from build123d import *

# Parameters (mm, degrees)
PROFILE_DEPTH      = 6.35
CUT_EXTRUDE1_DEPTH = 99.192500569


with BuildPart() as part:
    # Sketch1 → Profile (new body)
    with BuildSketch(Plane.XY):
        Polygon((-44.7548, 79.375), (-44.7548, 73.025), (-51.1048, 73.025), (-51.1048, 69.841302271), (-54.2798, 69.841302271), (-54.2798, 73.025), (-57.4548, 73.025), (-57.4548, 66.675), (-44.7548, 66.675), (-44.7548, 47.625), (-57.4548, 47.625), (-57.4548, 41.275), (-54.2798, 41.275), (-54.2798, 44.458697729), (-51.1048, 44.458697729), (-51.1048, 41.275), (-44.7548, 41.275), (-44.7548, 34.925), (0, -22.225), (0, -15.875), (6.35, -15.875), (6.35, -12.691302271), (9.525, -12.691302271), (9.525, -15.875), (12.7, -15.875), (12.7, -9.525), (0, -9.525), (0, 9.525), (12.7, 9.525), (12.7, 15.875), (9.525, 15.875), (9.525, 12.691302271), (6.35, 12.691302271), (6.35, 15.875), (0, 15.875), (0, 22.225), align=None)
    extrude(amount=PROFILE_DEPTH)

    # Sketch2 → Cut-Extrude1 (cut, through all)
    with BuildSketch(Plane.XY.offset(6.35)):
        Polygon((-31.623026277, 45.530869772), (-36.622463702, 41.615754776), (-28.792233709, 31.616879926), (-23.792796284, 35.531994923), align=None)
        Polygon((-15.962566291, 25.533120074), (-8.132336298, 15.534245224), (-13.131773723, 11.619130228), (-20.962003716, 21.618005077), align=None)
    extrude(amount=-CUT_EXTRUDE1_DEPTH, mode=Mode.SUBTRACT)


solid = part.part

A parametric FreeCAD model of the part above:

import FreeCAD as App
import Part
import Sketcher

V = App.Vector
Q = App.Units.Quantity

doc = App.newDocument("Part")
body = doc.addObject("PartDesign::Body", "Body")

# Sketch on XY plane
sketch1 = doc.addObject("Sketcher::SketchObject", "Sketch")
body.addObject(sketch1)
sketch1.AttachmentSupport = (doc.XY_Plane, [""])
sketch1.MapMode = "FlatFace"
sketch1.addGeometry([
    Part.LineSegment(V(-44.7548, 79.375, 0), V(-44.7548, 73.025, 0)),  # 0
    Part.LineSegment(V(-44.7548, 73.025, 0), V(-51.1048, 73.025, 0)),  # 1
    Part.LineSegment(V(-51.1048, 73.025, 0), V(-51.1048, 69.841302, 0)),  # 2
    Part.LineSegment(V(-51.1048, 69.841302, 0), V(-54.2798, 69.841302, 0)),  # 3
    Part.LineSegment(V(-54.2798, 69.841302, 0), V(-54.2798, 73.025, 0)),  # 4
    Part.LineSegment(V(-54.2798, 73.025, 0), V(-57.4548, 73.025, 0)),  # 5
    Part.LineSegment(V(-57.4548, 73.025, 0), V(-57.4548, 66.675, 0)),  # 6
    Part.LineSegment(V(-57.4548, 66.675, 0), V(-44.7548, 66.675, 0)),  # 7
    Part.LineSegment(V(-44.7548, 66.675, 0), V(-44.7548, 47.625, 0)),  # 8
    Part.LineSegment(V(-44.7548, 47.625, 0), V(-57.4548, 47.625, 0)),  # 9
    Part.LineSegment(V(-57.4548, 47.625, 0), V(-57.4548, 41.275, 0)),  # 10
    Part.LineSegment(V(-57.4548, 41.275, 0), V(-54.2798, 41.275, 0)),  # 11
    Part.LineSegment(V(-54.2798, 41.275, 0), V(-54.2798, 44.458698, 0)),  # 12
    Part.LineSegment(V(-54.2798, 44.458698, 0), V(-51.1048, 44.458698, 0)),  # 13
    Part.LineSegment(V(-51.1048, 44.458698, 0), V(-51.1048, 41.275, 0)),  # 14
    Part.LineSegment(V(-51.1048, 41.275, 0), V(-44.7548, 41.275, 0)),  # 15
    Part.LineSegment(V(-44.7548, 41.275, 0), V(-44.7548, 34.925, 0)),  # 16
    Part.LineSegment(V(-44.7548, 34.925, 0), V(0, -22.225, 0)),  # 17
    Part.LineSegment(V(0, -22.225, 0), V(0, -15.875, 0)),  # 18
    Part.LineSegment(V(0, -15.875, 0), V(6.35, -15.875, 0)),  # 19
    Part.LineSegment(V(6.35, -15.875, 0), V(6.35, -12.691302, 0)),  # 20
    Part.LineSegment(V(6.35, -12.691302, 0), V(9.525, -12.691302, 0)),  # 21
    Part.LineSegment(V(9.525, -12.691302, 0), V(9.525, -15.875, 0)),  # 22
    Part.LineSegment(V(9.525, -15.875, 0), V(12.7, -15.875, 0)),  # 23
    Part.LineSegment(V(12.7, -15.875, 0), V(12.7, -9.525, 0)),  # 24
    Part.LineSegment(V(12.7, -9.525, 0), V(0, -9.525, 0)),  # 25
    Part.LineSegment(V(0, -9.525, 0), V(0, 9.525, 0)),  # 26
    Part.LineSegment(V(0, 9.525, 0), V(12.7, 9.525, 0)),  # 27
    Part.LineSegment(V(12.7, 9.525, 0), V(12.7, 15.875, 0)),  # 28
    Part.LineSegment(V(12.7, 15.875, 0), V(9.525, 15.875, 0)),  # 29
    Part.LineSegment(V(9.525, 15.875, 0), V(9.525, 12.691302, 0)),  # 30
    Part.LineSegment(V(9.525, 12.691302, 0), V(6.35, 12.691302, 0)),  # 31
    Part.LineSegment(V(6.35, 12.691302, 0), V(6.35, 15.875, 0)),  # 32
    Part.LineSegment(V(6.35, 15.875, 0), V(0, 15.875, 0)),  # 33
    Part.LineSegment(V(0, 15.875, 0), V(0, 22.225, 0)),  # 34
    Part.LineSegment(V(0, 22.225, 0), V(-44.7548, 79.375, 0)),  # 35
], False)
sketch1.addConstraint([
    Sketcher.Constraint("Coincident", 0, 2, 1, 1),
    Sketcher.Constraint("Coincident", 1, 2, 2, 1),
    Sketcher.Constraint("Coincident", 2, 2, 3, 1),
    Sketcher.Constraint("Coincident", 3, 2, 4, 1),
    Sketcher.Constraint("Coincident", 4, 2, 5, 1),
    Sketcher.Constraint("Coincident", 5, 2, 6, 1),
    Sketcher.Constraint("Coincident", 6, 2, 7, 1),
    Sketcher.Constraint("Coincident", 7, 2, 8, 1),
    Sketcher.Constraint("Coincident", 8, 2, 9, 1),
    Sketcher.Constraint("Coincident", 9, 2, 10, 1),
    Sketcher.Constraint("Coincident", 10, 2, 11, 1),
    Sketcher.Constraint("Coincident", 11, 2, 12, 1),
    Sketcher.Constraint("Coincident", 12, 2, 13, 1),
    Sketcher.Constraint("Coincident", 13, 2, 14, 1),
    Sketcher.Constraint("Coincident", 14, 2, 15, 1),
    Sketcher.Constraint("Coincident", 15, 2, 16, 1),
    Sketcher.Constraint("Coincident", 16, 2, 17, 1),
    Sketcher.Constraint("Coincident", 17, 2, 18, 1),
    Sketcher.Constraint("Coincident", 18, 2, 19, 1),
    Sketcher.Constraint("Coincident", 19, 2, 20, 1),
    Sketcher.Constraint("Coincident", 20, 2, 21, 1),
    Sketcher.Constraint("Coincident", 21, 2, 22, 1),
    Sketcher.Constraint("Coincident", 22, 2, 23, 1),
    Sketcher.Constraint("Coincident", 23, 2, 24, 1),
    Sketcher.Constraint("Coincident", 24, 2, 25, 1),
    Sketcher.Constraint("Coincident", 25, 2, 26, 1),
    Sketcher.Constraint("Coincident", 26, 2, 27, 1),
    Sketcher.Constraint("Coincident", 27, 2, 28, 1),
    Sketcher.Constraint("Coincident", 28, 2, 29, 1),
    Sketcher.Constraint("Coincident", 29, 2, 30, 1),
    Sketcher.Constraint("Coincident", 30, 2, 31, 1),
    Sketcher.Constraint("Coincident", 31, 2, 32, 1),
    Sketcher.Constraint("Coincident", 32, 2, 33, 1),
    Sketcher.Constraint("Coincident", 33, 2, 34, 1),
    Sketcher.Constraint("Coincident", 34, 2, 35, 1),
    Sketcher.Constraint("Coincident", 35, 2, 0, 1),
    Sketcher.Constraint("Vertical", 0),
    Sketcher.Constraint("Horizontal", 1),
    Sketcher.Constraint("Vertical", 2),
    Sketcher.Constraint("Horizontal", 3),
    Sketcher.Constraint("Vertical", 4),
    Sketcher.Constraint("Horizontal", 5),
    Sketcher.Constraint("Vertical", 6),
    Sketcher.Constraint("Horizontal", 7),
    Sketcher.Constraint("Vertical", 8),
    Sketcher.Constraint("Horizontal", 9),
    Sketcher.Constraint("Vertical", 10),
    Sketcher.Constraint("Horizontal", 11),
    Sketcher.Constraint("Vertical", 12),
    Sketcher.Constraint("Horizontal", 13),
    Sketcher.Constraint("Vertical", 14),
    Sketcher.Constraint("Horizontal", 15),
    Sketcher.Constraint("Vertical", 16),
    Sketcher.Constraint("Vertical", 18),
    Sketcher.Constraint("Horizontal", 19),
    Sketcher.Constraint("Vertical", 20),
    Sketcher.Constraint("Horizontal", 21),
    Sketcher.Constraint("Vertical", 22),
    Sketcher.Constraint("Horizontal", 23),
    Sketcher.Constraint("Vertical", 24),
    Sketcher.Constraint("Horizontal", 25),
    Sketcher.Constraint("Vertical", 26),
    Sketcher.Constraint("Horizontal", 27),
    Sketcher.Constraint("Vertical", 28),
    Sketcher.Constraint("Horizontal", 29),
    Sketcher.Constraint("Vertical", 30),
    Sketcher.Constraint("Horizontal", 31),
    Sketcher.Constraint("Vertical", 32),
    Sketcher.Constraint("Horizontal", 33),
    Sketcher.Constraint("Vertical", 34),
    Sketcher.Constraint("Symmetric", 25, 2, 26, 2, -1, 1),
    Sketcher.Constraint("Symmetric", 18, 2, 33, 2, -1, 1),
    Sketcher.Constraint("Symmetric", 23, 2, 28, 2, -1),
    Sketcher.Constraint("Symmetric", 21, 2, 30, 2, -1),
    Sketcher.Constraint("Symmetric", 17, 2, 34, 2, -1),
    Sketcher.Constraint("Parallel", 17, 35),
    Sketcher.Constraint("Horizontal", 1, 2, 4, 2),
    Sketcher.Constraint("Horizontal", 11, 2, 14, 2),
    Sketcher.Constraint("Horizontal", 19, 2, 22, 2),
    Sketcher.Constraint("Vertical", 0, 2, 7, 2),
    Sketcher.Constraint("Vertical", 6, 2, 9, 2),
    Sketcher.Constraint("Vertical", 4, 2, 11, 2),
    Sketcher.Constraint("Vertical", 2, 2, 13, 2),
    Sketcher.Constraint("Vertical", 8, 2, 15, 2),
    Sketcher.Constraint("Vertical", 20, 2, 31, 2),
    Sketcher.Constraint("Equal", 3, 5),
    Sketcher.Constraint("Equal", 15, 19),
    Sketcher.Constraint("Equal", 13, 21),
    Sketcher.Constraint("Equal", 21, 23),
    Sketcher.Constraint("Equal", 33, 0),
    Sketcher.Constraint("Equal", 0, 6),
    Sketcher.Constraint("Equal", 6, 10),
    Sketcher.Constraint("Equal", 4, 12),
    Sketcher.Constraint("Equal", 10, 16),
    Sketcher.Constraint("Equal", 16, 18),
    Sketcher.Constraint("Equal", 14, 20),
    Sketcher.Constraint("Equal", 18, 24),
    Sketcher.Constraint("DistanceX", 7, 1, 7, 2, Q("0.5 in")),
    Sketcher.Constraint("DistanceY", 8, 2, 0, 2, Q("1 in")),
    Sketcher.Constraint("DistanceY", 18, 2, 16, 2, Q("2 in")),
    Sketcher.Constraint("DistanceX", 1, 2, 1, 1, Q("0.25 in")),
    Sketcher.Constraint("DistanceX", 0, 2, -1, 1, Q("1.762 in")),
    Sketcher.Constraint("DistanceY", 2, 2, 2, 1, Q("3.183698 mm")),
])
pad1 = doc.addObject("PartDesign::Pad", "Pad")
body.addObject(pad1)
pad1.Profile = sketch1
pad1.Length = Q("0.25 in")

# Sketch on XY plane
sketch2 = doc.addObject("Sketcher::SketchObject", "Sketch001")
body.addObject(sketch2)
sketch2.AttachmentSupport = (doc.XY_Plane, [""])
sketch2.MapMode = "FlatFace"
sketch2.AttachmentOffset = App.Placement(V(0, 0, 0.25 * 25.4), App.Rotation())
sketch2.addGeometry([
    Part.LineSegment(V(-31.623026, 45.53087, 0), V(-36.622464, 41.615755, 0)),  # 0
    Part.LineSegment(V(-36.622464, 41.615755, 0), V(-28.792234, 31.61688, 0)),  # 1
    Part.LineSegment(V(-28.792234, 31.61688, 0), V(-23.792796, 35.531995, 0)),  # 2
    Part.LineSegment(V(-23.792796, 35.531995, 0), V(-31.623026, 45.53087, 0)),  # 3
    Part.LineSegment(V(-8.132336, 15.534245, 0), V(-15.962566, 25.53312, 0)),  # 4
    Part.LineSegment(V(-15.962566, 25.53312, 0), V(-20.962004, 21.618005, 0)),  # 5
    Part.LineSegment(V(-20.962004, 21.618005, 0), V(-13.131774, 11.61913, 0)),  # 6
    Part.LineSegment(V(-13.131774, 11.61913, 0), V(-8.132336, 15.534245, 0)),  # 7
], False)
sketch2.addConstraint([
    Sketcher.Constraint("Coincident", 0, 2, 1, 1),
    Sketcher.Constraint("Coincident", 1, 2, 2, 1),
    Sketcher.Constraint("Coincident", 2, 2, 3, 1),
    Sketcher.Constraint("Coincident", 3, 2, 0, 1),
    Sketcher.Constraint("Coincident", 4, 2, 5, 1),
    Sketcher.Constraint("Coincident", 5, 2, 6, 1),
    Sketcher.Constraint("Coincident", 6, 2, 7, 1),
    Sketcher.Constraint("Coincident", 7, 2, 4, 1),
    Sketcher.Constraint("Perpendicular", 0, 1),
    Sketcher.Constraint("Perpendicular", 1, 2),
    Sketcher.Constraint("Perpendicular", 2, 3),
    Sketcher.Constraint("Parallel", 3, 4),
    Sketcher.Constraint("Perpendicular", 4, 5),
    Sketcher.Constraint("Perpendicular", 5, 6),
    Sketcher.Constraint("Perpendicular", 6, 7),
    Sketcher.Constraint("Equal", 3, 4),
    Sketcher.Constraint("Equal", 2, 5),
    Sketcher.Constraint("Distance", 1, Q("0.5 in")),
    Sketcher.Constraint("Distance", 0, Q("0.25 in")),
    Sketcher.Constraint("DistanceY", -1, 1, 1, 2, Q("31.61688 mm")),
    Sketcher.Constraint("DistanceY", -1, 1, 3, 2, Q("45.53087 mm")),
    Sketcher.Constraint("DistanceY", -1, 1, 4, 2, Q("25.53312 mm")),
    Sketcher.Constraint("DistanceX", 2, 2, 4, 2, Q("7.83023 mm")),
    Sketcher.Constraint("DistanceX", 0, 2, -1, 1, Q("36.622464 mm")),
])
pocket1 = doc.addObject("PartDesign::Pocket", "Pocket")
body.addObject(pocket1)
pocket1.Profile = sketch2
pocket1.Type = "ThroughAll"

doc.recompute()
